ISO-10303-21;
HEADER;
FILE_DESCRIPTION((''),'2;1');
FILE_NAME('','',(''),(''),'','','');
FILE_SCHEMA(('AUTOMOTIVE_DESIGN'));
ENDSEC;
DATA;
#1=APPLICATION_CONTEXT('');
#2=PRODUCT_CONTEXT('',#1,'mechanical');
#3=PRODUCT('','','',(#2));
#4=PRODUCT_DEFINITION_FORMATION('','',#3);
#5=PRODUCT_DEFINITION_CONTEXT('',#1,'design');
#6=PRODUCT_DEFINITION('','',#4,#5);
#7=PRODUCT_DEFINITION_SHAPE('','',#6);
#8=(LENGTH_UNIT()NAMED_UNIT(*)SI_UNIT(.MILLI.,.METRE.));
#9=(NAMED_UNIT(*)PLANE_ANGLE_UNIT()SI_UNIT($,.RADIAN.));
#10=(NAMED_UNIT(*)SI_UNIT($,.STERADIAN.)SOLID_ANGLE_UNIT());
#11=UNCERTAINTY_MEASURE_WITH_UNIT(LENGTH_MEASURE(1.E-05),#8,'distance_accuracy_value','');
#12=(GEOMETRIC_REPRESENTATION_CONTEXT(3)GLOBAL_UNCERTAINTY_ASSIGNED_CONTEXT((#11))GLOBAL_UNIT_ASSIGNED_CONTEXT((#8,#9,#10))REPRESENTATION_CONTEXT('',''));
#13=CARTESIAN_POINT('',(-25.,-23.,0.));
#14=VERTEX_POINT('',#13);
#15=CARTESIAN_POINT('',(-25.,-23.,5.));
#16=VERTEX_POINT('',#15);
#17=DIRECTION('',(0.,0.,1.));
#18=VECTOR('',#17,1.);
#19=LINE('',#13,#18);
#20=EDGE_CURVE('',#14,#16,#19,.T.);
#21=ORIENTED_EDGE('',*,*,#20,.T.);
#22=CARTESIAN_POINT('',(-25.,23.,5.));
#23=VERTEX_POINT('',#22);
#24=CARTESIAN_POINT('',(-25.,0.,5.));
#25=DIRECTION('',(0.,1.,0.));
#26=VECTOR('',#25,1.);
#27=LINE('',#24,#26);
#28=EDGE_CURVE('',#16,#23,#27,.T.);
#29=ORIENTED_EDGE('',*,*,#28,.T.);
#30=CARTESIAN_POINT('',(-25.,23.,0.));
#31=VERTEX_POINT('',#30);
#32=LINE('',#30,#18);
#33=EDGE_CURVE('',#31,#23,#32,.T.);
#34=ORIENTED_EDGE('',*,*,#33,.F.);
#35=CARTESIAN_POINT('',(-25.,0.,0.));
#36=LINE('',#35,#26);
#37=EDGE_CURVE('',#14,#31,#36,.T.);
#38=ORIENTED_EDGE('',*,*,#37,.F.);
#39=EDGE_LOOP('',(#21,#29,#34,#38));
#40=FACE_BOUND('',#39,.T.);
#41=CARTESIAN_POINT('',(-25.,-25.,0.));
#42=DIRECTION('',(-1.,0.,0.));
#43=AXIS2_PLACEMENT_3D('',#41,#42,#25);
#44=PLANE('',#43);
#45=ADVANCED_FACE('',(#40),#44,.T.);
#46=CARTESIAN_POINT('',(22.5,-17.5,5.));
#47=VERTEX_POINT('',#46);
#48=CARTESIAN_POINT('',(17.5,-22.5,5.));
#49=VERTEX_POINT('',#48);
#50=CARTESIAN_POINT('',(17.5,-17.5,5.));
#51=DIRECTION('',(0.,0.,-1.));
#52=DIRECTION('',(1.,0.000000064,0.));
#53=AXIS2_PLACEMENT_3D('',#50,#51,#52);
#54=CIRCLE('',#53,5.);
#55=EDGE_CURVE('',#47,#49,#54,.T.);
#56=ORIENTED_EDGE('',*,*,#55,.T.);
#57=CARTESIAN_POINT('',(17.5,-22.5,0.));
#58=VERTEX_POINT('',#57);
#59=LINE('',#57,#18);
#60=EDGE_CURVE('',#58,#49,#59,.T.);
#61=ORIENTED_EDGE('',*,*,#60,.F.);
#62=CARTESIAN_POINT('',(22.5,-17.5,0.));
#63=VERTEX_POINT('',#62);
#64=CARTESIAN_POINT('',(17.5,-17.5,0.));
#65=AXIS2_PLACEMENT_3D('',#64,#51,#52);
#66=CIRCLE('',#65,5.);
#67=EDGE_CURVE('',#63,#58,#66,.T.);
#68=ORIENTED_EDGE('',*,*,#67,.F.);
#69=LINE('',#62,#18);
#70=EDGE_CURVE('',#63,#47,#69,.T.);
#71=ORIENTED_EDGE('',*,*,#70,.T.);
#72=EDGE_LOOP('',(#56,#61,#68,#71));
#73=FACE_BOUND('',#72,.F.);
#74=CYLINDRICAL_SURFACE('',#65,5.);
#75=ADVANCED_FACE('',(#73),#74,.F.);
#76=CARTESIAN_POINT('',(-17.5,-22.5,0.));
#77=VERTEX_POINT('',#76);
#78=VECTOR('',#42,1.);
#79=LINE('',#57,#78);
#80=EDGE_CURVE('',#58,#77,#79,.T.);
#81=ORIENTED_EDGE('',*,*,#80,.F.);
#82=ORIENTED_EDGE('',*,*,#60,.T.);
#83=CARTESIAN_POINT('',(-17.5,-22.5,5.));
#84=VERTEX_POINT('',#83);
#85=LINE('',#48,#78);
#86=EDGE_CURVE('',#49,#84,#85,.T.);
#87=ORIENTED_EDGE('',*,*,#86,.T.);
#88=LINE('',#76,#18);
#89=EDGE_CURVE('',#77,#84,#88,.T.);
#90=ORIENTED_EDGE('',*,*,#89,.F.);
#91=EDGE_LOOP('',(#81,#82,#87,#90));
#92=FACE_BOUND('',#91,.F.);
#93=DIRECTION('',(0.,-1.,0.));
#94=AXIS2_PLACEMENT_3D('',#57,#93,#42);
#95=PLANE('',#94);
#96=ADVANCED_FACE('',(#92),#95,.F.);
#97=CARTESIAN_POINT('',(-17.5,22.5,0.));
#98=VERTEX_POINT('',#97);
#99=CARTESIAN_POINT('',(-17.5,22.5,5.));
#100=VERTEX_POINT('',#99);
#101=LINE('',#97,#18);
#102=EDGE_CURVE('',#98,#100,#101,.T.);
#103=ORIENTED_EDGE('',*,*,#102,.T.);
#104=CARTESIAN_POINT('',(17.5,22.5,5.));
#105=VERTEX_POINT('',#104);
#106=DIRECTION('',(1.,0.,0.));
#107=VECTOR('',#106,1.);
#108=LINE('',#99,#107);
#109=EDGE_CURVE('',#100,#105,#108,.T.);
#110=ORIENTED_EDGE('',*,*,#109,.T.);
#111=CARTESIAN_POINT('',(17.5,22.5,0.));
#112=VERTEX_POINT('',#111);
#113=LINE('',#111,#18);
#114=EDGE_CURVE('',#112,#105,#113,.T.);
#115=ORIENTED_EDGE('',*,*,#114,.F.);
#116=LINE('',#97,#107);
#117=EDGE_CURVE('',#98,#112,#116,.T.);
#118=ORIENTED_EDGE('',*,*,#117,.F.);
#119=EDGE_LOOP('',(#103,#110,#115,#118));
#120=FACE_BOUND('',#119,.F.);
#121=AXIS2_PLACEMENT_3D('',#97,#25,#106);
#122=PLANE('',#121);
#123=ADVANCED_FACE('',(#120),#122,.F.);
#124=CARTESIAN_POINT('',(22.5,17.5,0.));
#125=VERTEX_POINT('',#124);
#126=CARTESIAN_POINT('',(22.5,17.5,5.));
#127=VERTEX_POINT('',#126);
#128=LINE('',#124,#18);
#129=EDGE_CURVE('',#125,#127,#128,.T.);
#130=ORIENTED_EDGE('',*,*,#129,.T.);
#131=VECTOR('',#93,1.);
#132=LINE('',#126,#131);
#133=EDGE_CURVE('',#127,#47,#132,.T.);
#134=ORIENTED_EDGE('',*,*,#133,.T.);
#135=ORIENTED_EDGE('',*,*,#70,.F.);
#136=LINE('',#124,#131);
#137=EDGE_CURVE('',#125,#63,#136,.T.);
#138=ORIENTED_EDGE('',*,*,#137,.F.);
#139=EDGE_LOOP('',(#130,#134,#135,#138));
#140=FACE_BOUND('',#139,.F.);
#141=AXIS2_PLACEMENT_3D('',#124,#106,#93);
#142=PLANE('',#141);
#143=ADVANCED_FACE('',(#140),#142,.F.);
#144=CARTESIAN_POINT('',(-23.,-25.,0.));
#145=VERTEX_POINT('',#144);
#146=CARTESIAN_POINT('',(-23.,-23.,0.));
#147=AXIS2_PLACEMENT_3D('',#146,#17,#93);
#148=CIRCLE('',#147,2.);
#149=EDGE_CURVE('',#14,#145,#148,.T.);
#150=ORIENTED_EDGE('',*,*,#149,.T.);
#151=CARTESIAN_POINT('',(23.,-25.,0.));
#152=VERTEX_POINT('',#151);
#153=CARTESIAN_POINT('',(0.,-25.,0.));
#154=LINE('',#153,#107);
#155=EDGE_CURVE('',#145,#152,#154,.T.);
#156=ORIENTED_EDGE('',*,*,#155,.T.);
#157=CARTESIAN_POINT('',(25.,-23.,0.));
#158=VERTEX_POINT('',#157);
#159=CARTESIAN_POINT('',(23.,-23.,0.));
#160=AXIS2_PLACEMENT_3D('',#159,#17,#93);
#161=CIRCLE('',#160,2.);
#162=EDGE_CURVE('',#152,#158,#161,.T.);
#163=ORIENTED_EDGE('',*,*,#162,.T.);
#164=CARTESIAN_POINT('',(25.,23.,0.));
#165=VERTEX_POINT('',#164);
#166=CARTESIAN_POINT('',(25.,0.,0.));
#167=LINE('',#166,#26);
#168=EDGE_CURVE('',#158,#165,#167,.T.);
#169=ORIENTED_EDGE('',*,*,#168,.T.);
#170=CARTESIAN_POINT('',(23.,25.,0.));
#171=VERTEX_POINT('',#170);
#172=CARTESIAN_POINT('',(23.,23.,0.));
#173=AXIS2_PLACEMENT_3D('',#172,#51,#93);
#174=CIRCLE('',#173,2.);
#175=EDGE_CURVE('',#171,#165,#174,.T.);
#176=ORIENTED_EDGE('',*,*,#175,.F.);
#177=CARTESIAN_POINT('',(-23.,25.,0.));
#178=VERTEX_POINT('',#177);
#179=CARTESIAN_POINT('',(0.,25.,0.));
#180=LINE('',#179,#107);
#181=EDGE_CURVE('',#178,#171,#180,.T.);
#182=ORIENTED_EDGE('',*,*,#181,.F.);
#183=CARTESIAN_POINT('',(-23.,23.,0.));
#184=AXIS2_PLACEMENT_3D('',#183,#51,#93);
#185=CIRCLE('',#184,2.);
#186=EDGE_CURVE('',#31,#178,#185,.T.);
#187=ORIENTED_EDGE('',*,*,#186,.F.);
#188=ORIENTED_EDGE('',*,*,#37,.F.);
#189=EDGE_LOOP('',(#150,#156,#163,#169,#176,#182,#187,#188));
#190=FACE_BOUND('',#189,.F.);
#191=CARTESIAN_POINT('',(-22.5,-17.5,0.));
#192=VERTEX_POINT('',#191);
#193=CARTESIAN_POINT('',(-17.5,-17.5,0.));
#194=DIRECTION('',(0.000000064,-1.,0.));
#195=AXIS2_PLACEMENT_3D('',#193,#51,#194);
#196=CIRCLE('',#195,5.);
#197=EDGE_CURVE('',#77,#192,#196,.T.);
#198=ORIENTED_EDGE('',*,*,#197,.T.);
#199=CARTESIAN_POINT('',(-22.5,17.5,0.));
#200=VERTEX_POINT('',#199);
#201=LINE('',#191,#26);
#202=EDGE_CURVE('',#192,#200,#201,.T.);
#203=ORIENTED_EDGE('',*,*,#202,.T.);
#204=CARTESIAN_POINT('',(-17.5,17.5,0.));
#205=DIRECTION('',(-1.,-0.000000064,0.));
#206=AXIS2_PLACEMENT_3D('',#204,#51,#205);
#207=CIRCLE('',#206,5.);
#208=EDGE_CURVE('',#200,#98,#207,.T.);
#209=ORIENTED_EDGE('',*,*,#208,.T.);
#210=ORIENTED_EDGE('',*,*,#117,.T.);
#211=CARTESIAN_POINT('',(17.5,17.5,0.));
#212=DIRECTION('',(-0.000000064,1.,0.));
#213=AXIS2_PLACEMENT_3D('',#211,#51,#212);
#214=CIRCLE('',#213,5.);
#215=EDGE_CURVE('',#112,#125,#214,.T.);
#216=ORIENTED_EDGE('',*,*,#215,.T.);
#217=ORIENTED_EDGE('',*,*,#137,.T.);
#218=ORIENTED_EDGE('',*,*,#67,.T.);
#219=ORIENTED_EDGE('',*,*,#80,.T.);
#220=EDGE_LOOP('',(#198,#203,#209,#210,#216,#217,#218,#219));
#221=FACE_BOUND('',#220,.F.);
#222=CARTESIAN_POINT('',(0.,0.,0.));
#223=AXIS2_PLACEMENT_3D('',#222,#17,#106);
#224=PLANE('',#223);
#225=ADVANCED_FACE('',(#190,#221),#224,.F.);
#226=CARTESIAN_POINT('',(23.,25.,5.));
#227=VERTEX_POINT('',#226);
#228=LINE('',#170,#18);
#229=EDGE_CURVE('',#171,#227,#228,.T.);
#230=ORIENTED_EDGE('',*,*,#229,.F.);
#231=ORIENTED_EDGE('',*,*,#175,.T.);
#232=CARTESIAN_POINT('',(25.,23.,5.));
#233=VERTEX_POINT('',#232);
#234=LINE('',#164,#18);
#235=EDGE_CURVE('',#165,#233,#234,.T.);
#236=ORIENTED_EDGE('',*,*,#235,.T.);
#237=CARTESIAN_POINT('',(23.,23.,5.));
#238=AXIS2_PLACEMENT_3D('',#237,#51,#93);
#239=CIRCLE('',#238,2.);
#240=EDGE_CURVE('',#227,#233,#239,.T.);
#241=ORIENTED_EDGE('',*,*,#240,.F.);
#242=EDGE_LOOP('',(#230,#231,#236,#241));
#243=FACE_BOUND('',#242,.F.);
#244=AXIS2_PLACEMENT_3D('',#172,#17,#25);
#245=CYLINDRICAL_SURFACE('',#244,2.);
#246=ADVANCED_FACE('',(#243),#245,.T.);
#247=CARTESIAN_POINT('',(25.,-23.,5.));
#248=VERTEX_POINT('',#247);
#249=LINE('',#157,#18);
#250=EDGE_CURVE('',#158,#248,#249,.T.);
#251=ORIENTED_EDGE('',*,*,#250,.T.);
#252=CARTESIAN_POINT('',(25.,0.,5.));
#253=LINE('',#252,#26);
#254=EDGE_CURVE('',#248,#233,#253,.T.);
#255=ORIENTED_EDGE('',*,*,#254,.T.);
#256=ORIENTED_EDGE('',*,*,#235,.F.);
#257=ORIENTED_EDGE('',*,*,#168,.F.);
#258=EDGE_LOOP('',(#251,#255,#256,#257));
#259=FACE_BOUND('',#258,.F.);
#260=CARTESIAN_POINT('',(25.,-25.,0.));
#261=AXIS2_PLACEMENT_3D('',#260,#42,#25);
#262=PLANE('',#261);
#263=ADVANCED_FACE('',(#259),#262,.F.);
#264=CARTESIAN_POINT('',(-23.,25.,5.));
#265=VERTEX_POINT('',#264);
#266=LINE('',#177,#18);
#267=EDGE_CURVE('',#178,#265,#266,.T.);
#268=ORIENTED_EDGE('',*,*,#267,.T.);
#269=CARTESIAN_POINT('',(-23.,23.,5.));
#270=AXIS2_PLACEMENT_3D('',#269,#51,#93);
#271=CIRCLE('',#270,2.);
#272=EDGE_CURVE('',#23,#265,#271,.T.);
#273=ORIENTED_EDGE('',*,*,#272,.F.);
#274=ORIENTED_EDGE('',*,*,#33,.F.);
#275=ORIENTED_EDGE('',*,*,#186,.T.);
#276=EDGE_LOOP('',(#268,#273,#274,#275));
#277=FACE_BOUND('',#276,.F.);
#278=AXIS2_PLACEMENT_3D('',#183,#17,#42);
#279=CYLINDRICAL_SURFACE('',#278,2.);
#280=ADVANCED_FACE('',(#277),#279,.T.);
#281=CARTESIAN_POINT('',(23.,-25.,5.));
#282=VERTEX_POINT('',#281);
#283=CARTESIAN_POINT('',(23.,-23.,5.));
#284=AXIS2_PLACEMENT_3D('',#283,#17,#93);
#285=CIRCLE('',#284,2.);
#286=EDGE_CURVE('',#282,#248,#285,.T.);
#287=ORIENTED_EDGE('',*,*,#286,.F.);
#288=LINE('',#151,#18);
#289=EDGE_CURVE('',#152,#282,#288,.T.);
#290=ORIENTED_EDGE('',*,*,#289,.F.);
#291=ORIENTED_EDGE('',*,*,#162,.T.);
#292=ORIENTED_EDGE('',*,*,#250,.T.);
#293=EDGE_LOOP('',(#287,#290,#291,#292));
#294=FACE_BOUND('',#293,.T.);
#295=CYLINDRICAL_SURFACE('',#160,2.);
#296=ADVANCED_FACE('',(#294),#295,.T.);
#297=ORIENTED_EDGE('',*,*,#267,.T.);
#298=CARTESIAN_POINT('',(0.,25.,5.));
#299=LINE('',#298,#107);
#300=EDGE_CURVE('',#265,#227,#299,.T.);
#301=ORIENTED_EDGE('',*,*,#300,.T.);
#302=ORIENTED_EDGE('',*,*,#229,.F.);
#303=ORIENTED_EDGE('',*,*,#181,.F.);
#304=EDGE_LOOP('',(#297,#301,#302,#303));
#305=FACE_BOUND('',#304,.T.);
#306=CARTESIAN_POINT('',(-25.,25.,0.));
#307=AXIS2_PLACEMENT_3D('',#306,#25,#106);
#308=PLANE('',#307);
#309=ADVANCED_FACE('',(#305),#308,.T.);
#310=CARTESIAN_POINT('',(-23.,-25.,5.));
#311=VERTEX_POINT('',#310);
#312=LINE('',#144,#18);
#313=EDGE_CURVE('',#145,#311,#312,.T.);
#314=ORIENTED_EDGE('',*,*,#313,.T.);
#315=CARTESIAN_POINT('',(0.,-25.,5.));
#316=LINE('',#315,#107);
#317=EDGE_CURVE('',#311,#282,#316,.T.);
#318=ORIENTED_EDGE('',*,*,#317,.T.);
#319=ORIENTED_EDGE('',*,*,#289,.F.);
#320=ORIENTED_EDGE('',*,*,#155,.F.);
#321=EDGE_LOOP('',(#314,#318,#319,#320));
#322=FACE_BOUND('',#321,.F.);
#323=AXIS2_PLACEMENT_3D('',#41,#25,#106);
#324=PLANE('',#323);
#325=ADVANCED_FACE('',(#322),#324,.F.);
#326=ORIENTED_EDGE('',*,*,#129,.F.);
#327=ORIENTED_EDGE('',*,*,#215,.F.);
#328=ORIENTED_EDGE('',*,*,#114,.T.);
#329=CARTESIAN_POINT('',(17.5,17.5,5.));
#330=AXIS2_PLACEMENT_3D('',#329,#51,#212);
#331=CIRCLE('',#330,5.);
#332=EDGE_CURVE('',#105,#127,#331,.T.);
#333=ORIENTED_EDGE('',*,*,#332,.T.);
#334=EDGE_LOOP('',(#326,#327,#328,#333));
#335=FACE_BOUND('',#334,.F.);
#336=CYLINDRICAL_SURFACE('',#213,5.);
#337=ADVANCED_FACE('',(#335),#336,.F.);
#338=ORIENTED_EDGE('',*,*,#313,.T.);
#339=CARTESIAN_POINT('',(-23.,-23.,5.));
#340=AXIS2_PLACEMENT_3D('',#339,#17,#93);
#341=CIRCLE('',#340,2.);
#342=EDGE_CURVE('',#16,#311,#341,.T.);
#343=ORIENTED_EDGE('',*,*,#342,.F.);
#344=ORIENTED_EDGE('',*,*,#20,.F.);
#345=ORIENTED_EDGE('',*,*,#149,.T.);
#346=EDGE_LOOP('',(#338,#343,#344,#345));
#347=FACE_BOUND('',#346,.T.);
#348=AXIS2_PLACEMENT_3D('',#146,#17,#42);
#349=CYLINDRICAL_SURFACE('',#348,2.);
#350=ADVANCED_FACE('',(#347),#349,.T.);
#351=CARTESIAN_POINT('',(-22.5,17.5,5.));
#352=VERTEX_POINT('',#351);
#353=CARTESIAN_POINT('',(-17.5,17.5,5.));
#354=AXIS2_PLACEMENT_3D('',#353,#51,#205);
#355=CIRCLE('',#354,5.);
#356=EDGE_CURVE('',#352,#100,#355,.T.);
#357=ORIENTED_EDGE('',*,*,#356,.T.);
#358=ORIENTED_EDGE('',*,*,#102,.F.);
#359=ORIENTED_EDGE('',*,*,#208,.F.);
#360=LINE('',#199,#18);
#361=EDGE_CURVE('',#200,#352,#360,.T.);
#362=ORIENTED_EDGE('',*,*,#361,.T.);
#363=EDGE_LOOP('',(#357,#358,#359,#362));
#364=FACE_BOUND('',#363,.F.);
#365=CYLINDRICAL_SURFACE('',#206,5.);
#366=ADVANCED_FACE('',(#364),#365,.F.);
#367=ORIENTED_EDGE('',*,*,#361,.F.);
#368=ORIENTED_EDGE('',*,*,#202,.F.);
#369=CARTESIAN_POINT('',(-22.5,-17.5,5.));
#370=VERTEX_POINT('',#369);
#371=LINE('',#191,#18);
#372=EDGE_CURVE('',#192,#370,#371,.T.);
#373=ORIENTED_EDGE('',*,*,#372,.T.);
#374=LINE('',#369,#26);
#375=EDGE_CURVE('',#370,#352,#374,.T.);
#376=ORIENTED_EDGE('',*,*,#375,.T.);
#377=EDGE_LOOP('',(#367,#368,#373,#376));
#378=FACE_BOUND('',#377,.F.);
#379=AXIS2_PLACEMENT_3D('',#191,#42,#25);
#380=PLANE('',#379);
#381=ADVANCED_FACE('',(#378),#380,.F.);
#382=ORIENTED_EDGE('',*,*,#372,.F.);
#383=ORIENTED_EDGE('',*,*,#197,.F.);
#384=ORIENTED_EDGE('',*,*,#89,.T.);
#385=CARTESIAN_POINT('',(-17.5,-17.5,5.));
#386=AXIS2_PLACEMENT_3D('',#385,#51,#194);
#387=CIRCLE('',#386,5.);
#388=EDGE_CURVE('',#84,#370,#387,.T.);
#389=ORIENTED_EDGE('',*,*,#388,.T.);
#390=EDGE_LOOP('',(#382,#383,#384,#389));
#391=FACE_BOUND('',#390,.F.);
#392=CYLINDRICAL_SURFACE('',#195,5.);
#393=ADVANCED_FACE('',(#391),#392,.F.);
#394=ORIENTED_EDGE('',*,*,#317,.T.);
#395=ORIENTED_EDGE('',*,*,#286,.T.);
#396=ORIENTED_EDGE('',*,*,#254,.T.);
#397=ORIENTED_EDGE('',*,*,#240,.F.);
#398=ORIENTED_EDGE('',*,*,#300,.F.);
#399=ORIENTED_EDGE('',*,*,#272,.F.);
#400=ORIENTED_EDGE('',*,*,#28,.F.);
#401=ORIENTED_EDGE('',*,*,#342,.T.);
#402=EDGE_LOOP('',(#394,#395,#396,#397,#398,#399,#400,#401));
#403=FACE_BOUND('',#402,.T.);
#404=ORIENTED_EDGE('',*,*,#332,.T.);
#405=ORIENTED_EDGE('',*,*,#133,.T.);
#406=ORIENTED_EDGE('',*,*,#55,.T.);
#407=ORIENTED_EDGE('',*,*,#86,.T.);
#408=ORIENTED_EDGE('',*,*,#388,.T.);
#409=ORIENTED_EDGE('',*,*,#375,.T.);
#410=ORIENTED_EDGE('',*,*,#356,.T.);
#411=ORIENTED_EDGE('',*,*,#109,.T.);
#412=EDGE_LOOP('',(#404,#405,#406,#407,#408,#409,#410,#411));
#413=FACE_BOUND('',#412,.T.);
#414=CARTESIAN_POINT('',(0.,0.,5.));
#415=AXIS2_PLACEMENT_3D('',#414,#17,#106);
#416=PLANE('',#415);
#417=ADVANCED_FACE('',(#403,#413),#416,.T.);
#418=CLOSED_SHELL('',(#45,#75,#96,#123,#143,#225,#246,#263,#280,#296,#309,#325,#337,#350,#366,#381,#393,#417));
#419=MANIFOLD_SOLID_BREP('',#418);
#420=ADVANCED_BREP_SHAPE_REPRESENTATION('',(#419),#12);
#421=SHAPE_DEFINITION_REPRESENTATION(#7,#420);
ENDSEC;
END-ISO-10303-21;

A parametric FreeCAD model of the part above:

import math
import FreeCAD as App
import Part
import Sketcher
from FreeCAD import Vector
Q = App.Units.Quantity


def edges_at(feature, points):
    """Names of the edges that pass closest to the given points."""
    edges = feature.Shape.Edges
    near = lambda p: min(range(len(edges)), key=lambda i: edges[i].distToShape(Part.Vertex(*p))[0])
    return sorted({f"Edge{near(p) + 1}" for p in points})


def add_polygon(sketch, points):
    """Adds a closed chain of lines whose ends are joined by coincident constraints."""
    first, n = sketch.GeometryCount, len(points)
    for a, b in zip(points, points[1:] + points[:1]):
        sketch.addGeometry(Part.LineSegment(App.Vector(*a, 0), App.Vector(*b, 0)), False)
    for i in range(n):
        sketch.addConstraint(Sketcher.Constraint("Coincident", first + i, 2, first + (i + 1) % n, 1))

doc = App.newDocument("Part")
body = doc.addObject("PartDesign::Body", "Body")

sketch1 = doc.addObject("Sketcher::SketchObject", "Sketch")
body.addObject(sketch1)
sketch1.AttachmentSupport = (doc.XY_Plane, [""])
sketch1.MapMode = "FlatFace"
add_polygon(sketch1, [(-25, 25), (-25, -25), (25, -25), (25, 25)])
sketch1.addGeometry(Part.LineSegment(Vector(-22.5, -17.5, 0), Vector(-22.5, 17.5, 0)), False)
sketch1.addGeometry(Part.ArcOfCircle(Part.Circle(Vector(-17.5, 17.5, 0), Vector(0, 0, 1), 5), math.radians(90), math.radians(180)), False)
sketch1.addGeometry(Part.LineSegment(Vector(-17.5, 22.5, 0), Vector(17.5, 22.5, 0)), False)
sketch1.addGeometry(Part.ArcOfCircle(Part.Circle(Vector(17.5, 17.5, 0), Vector(0, 0, 1), 5), math.radians(0), math.radians(90)), False)
sketch1.addGeometry(Part.LineSegment(Vector(22.5, 17.5, 0), Vector(22.5, -17.5, 0)), False)
sketch1.addGeometry(Part.ArcOfCircle(Part.Circle(Vector(17.5, -17.5, 0), Vector(0, 0, 1), 5), math.radians(-90), math.radians(0)), False)
sketch1.addGeometry(Part.LineSegment(Vector(17.5, -22.5, 0), Vector(-17.5, -22.5, 0)), False)
sketch1.addGeometry(Part.ArcOfCircle(Part.Circle(Vector(-17.5, -17.5, 0), Vector(0, 0, 1), 5), math.radians(180), math.radians(270)), False)
sketch1.addConstraint([
    Sketcher.Constraint("Tangent", 4, 2, 5, 2),
    Sketcher.Constraint("Tangent", 5, 1, 6, 1),
    Sketcher.Constraint("Tangent", 6, 2, 7, 2),
    Sketcher.Constraint("Tangent", 7, 1, 8, 1),
    Sketcher.Constraint("Tangent", 8, 2, 9, 2),
    Sketcher.Constraint("Tangent", 9, 1, 10, 1),
    Sketcher.Constraint("Tangent", 10, 2, 11, 2),
    Sketcher.Constraint("Tangent", 11, 1, 4, 1),
    Sketcher.Constraint("Vertical", 0),
    Sketcher.Constraint("Horizontal", 1),
    Sketcher.Constraint("Vertical", 2),
    Sketcher.Constraint("Horizontal", 3),
    Sketcher.Constraint("Vertical", 4),
    Sketcher.Constraint("Horizontal", 6),
    Sketcher.Constraint("Vertical", 8),
    Sketcher.Constraint("Horizontal", 10),
    Sketcher.Constraint("Equal", 5, 7),
    Sketcher.Constraint("Equal", 7, 9),
    Sketcher.Constraint("Equal", 9, 11),
    Sketcher.Constraint("Symmetric", 5, 3, 9, 3, -1, 1),
    Sketcher.Constraint("Symmetric", 0, 2, 2, 2, -1, 1),
    Sketcher.Constraint("Equal", 3, 0),
    Sketcher.Constraint("Equal", 10, 4),
    Sketcher.Constraint("Radius", 5, Q("5 mm")),
    Sketcher.Constraint("DistanceX", 1, 1, 1, 2, Q("50 mm")),
    Sketcher.Constraint("DistanceX", 6, 1, 6, 2, Q("35 mm")),
])
pad1 = doc.addObject("PartDesign::Pad", "Pad")
body.addObject(pad1)
pad1.Profile = sketch1
pad1.Length = 5
doc.recompute()

fillet = doc.addObject("PartDesign::Fillet", "Fillet")
body.addObject(fillet)
fillet.Base = (pad1, edges_at(pad1, [
    (-25, -25, 2.5),
    (25, -25, 2.5),
    (25, 25, 2.5),
    (-25, 25, 2.5),
]))
fillet.Radius = 2

doc.recompute()
